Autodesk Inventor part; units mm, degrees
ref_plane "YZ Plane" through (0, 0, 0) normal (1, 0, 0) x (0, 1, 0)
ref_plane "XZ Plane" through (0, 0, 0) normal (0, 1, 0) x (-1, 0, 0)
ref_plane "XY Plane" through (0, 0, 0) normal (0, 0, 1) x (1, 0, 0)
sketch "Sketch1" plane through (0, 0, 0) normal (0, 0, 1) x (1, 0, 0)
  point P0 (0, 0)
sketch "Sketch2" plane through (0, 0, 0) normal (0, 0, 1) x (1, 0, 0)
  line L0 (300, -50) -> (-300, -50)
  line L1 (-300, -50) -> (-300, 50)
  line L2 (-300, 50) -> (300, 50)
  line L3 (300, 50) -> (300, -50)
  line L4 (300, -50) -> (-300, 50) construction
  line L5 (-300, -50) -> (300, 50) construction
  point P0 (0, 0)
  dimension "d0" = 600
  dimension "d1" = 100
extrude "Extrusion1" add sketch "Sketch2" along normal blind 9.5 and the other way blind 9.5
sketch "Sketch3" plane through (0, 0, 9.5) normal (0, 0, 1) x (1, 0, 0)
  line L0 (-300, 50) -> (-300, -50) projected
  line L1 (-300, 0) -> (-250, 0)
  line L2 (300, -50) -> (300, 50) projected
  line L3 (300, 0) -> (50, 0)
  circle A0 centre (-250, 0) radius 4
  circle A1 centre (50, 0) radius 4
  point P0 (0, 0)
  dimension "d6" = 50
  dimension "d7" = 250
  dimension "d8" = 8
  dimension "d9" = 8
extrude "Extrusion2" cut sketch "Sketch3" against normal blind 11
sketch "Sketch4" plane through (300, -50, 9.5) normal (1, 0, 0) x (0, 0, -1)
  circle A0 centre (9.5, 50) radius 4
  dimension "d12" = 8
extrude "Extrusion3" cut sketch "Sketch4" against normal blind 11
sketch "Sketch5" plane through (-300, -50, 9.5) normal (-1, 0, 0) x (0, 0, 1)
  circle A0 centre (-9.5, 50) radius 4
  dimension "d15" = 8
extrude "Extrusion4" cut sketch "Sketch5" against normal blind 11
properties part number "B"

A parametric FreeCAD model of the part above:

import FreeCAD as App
import Part
import Sketcher
Q = App.Units.Quantity

doc = App.newDocument("Part")
body = doc.addObject("PartDesign::Body", "Body")

# Sketch on XY plane
sketch1 = body.newObject("Sketcher::SketchObject", "Sketch")
sketch1.AttachmentSupport = (doc.getObject("XY_Plane"), [""])
sketch1.MapMode = "FlatFace"
sketch1.addGeometry(Part.LineSegment(App.Vector(-300, -50, 0), App.Vector(300, -50, 0)), False)
sketch1.addGeometry(Part.LineSegment(App.Vector(300, -50, 0), App.Vector(300, 50, 0)), False)
sketch1.addGeometry(Part.LineSegment(App.Vector(300, 50, 0), App.Vector(-300, 50, 0)), False)
sketch1.addGeometry(Part.LineSegment(App.Vector(-300, 50, 0), App.Vector(-300, -50, 0)), False)
sketch1.addConstraint(Sketcher.Constraint("Coincident", 0, 2, 1, 1))
sketch1.addConstraint(Sketcher.Constraint("Coincident", 1, 2, 2, 1))
sketch1.addConstraint(Sketcher.Constraint("Coincident", 2, 2, 3, 1))
sketch1.addConstraint(Sketcher.Constraint("Coincident", 3, 2, 0, 1))
sketch1.addConstraint(Sketcher.Constraint("Horizontal", 0))
sketch1.addConstraint(Sketcher.Constraint("Vertical", 1))
sketch1.addConstraint(Sketcher.Constraint("Horizontal", 2))
sketch1.addConstraint(Sketcher.Constraint("Vertical", 3))
sketch1.addConstraint(Sketcher.Constraint("Symmetric", 0, 2, 2, 2, -1, 1))
sketch1.addConstraint(Sketcher.Constraint("DistanceX", 0, 1, 0, 2, Q("600 mm")))
sketch1.addConstraint(Sketcher.Constraint("DistanceY", 1, 1, 1, 2, Q("100 mm")))
pad1 = body.newObject("PartDesign::Pad", "Pad")
pad1.Profile = sketch1
pad1.Type = "TwoLengths"
pad1.Length = 9.5
pad1.Length2 = 9.5

# Sketch on XY plane
sketch2 = body.newObject("Sketcher::SketchObject", "Sketch001")
sketch2.AttachmentSupport = (doc.getObject("XY_Plane"), [""])
sketch2.MapMode = "FlatFace"
sketch2.AttachmentOffset = App.Placement(App.Vector(0, 0, 9.5), App.Rotation())
sketch2.addGeometry(Part.Circle(App.Vector(-250, 0, 0), App.Vector(0, 0, 1), 4), False)
sketch2.addGeometry(Part.Circle(App.Vector(50, 0, 0), App.Vector(0, 0, 1), 4), False)
sketch2.addConstraint(Sketcher.Constraint("Equal", 0, 1))
sketch2.addConstraint(Sketcher.Constraint("PointOnObject", 0, 3, -1))
sketch2.addConstraint(Sketcher.Constraint("PointOnObject", 1, 3, -1))
sketch2.addConstraint(Sketcher.Constraint("Diameter", 0, Q("8 mm")))
sketch2.addConstraint(Sketcher.Constraint("DistanceX", 0, 3, -1, 1, Q("250 mm")))
sketch2.addConstraint(Sketcher.Constraint("DistanceX", -1, 1, 1, 3, Q("50 mm")))
pocket1 = body.newObject("PartDesign::Pocket", "Pocket")
pocket1.Profile = sketch2
pocket1.Length = 11

# Sketch on YZ plane
sketch3 = body.newObject("Sketcher::SketchObject", "Sketch002")
sketch3.AttachmentSupport = (doc.getObject("YZ_Plane"), [""])
sketch3.MapMode = "FlatFace"
sketch3.AttachmentOffset = App.Placement(App.Vector(0, 0, 300), App.Rotation())
sketch3.addGeometry(Part.Circle(App.Vector(0, 0, 0), App.Vector(0, 0, 1), 4), False)
sketch3.addConstraint(Sketcher.Constraint("Coincident", 0, 3, -1, 1))
sketch3.addConstraint(Sketcher.Constraint("Diameter", 0, Q("8 mm")))
pocket2 = body.newObject("PartDesign::Pocket", "Pocket001")
pocket2.Profile = sketch3
pocket2.Length = 11

# Sketch on YZ plane
sketch4 = body.newObject("Sketcher::SketchObject", "Sketch003")
sketch4.AttachmentSupport = (doc.getObject("YZ_Plane"), [""])
sketch4.MapMode = "FlatFace"
sketch4.AttachmentOffset = App.Placement(App.Vector(0, 0, -300), App.Rotation())
sketch4.addGeometry(Part.Circle(App.Vector(0, 0, 0), App.Vector(0, 0, 1), 4), False)
sketch4.addConstraint(Sketcher.Constraint("Coincident", 0, 3, -1, 1))
sketch4.addConstraint(Sketcher.Constraint("Diameter", 0, Q("8 mm")))
pocket3 = body.newObject("PartDesign::Pocket", "Pocket002")
pocket3.Profile = sketch4
pocket3.Length = 11
pocket3.Reversed = True

doc.recompute()
